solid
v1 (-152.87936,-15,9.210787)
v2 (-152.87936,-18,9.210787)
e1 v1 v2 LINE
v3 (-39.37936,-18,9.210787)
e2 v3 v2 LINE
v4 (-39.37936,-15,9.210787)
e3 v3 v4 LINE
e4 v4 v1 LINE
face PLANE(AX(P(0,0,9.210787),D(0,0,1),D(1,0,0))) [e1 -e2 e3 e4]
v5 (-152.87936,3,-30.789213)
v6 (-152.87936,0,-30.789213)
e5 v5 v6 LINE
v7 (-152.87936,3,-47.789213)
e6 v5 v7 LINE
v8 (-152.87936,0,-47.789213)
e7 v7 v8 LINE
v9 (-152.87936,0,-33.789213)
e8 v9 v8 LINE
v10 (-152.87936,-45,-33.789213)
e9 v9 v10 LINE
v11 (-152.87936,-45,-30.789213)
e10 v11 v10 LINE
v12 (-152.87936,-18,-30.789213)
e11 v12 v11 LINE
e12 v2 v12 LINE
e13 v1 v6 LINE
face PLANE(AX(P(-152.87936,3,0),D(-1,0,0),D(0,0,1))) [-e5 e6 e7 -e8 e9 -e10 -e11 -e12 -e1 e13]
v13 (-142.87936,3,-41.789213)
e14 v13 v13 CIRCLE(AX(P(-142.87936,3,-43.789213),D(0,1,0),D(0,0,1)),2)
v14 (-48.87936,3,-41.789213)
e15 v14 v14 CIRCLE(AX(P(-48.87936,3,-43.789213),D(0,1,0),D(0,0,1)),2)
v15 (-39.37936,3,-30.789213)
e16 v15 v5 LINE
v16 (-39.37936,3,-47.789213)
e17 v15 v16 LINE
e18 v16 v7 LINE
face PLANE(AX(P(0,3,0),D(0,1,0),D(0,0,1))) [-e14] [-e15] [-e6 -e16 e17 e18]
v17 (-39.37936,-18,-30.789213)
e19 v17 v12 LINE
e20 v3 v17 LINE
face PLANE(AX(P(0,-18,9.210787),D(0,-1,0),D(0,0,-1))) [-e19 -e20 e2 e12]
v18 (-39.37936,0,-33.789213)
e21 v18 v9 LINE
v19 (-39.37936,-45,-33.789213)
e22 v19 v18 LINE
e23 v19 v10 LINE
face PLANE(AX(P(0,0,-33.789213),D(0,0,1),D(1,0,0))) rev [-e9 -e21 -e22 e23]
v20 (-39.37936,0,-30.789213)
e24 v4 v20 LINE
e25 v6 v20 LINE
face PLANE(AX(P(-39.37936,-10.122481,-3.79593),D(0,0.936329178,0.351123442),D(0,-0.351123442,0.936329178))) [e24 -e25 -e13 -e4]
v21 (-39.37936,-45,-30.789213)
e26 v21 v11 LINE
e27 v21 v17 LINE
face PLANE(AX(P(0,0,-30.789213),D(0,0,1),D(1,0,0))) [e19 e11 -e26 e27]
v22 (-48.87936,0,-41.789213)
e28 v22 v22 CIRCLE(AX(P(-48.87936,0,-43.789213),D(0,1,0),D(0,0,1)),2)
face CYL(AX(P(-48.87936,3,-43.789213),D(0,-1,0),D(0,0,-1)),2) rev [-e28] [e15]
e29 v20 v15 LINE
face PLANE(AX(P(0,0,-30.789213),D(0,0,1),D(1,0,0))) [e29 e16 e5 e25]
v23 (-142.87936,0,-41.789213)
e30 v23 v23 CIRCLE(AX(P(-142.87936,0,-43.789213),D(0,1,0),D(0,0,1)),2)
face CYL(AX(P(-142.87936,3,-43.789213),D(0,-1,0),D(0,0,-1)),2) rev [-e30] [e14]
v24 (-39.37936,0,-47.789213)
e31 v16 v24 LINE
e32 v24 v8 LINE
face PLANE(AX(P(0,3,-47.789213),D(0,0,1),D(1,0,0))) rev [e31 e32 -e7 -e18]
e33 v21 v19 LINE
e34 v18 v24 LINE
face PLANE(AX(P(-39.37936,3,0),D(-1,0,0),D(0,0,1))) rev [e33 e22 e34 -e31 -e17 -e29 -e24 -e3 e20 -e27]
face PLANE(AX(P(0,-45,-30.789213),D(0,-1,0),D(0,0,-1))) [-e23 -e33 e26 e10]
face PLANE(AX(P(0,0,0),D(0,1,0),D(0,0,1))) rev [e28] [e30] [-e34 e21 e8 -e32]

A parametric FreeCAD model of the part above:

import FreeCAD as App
import Part
import Sketcher

V = App.Vector
Q = App.Units.Quantity


def add_polygon(sketch, points):
    """Adds a closed chain of lines whose ends are joined by coincident constraints."""
    first, n = sketch.GeometryCount, len(points)
    for a, b in zip(points, points[1:] + points[:1]):
        sketch.addGeometry(Part.LineSegment(App.Vector(*a, 0), App.Vector(*b, 0)), False)
    for i in range(n):
        sketch.addConstraint(Sketcher.Constraint("Coincident", first + i, 2, first + (i + 1) % n, 1))

doc = App.newDocument("Part")
body = doc.addObject("PartDesign::Body", "Body")

# Sketch on XZ plane
sketch1 = body.newObject("Sketcher::SketchObject", "Sketch")
sketch1.AttachmentSupport = (doc.getObject("XZ_Plane"), [""])
sketch1.MapMode = "FlatFace"
add_polygon(sketch1, [(-39.4, -47.8), (-152.9, -47.8), (-152.9, -33.8), (-39.4, -33.8)])  # lines 0-3
sketch1.addGeometry(Part.Circle(V(-142.9, -43.8, 0), V(0, 0, 1), 2), False)  # 4
sketch1.addGeometry(Part.Circle(V(-48.9, -43.8, 0), V(0, 0, 1), 2), False)  # 5
sketch1.addConstraint([
    Sketcher.Constraint("Horizontal", 0),
    Sketcher.Constraint("Vertical", 1),
    Sketcher.Constraint("Horizontal", 2),
    Sketcher.Constraint("Vertical", 3),
    Sketcher.Constraint("Equal", 4, 5),
    Sketcher.Constraint("Horizontal", 4, 3, 5, 3),
    Sketcher.Constraint("Diameter", 4, Q("4 mm")),
    Sketcher.Constraint("DistanceY", 1, 1, 1, 2, Q("14 mm")),
    Sketcher.Constraint("DistanceX", 0, 2, 0, 1, Q("113.5 mm")),
    Sketcher.Constraint("DistanceX", 4, 3, 5, 3, Q("94 mm")),
    Sketcher.Constraint("DistanceX", 0, 2, 4, 3, Q("10 mm")),
    Sketcher.Constraint("DistanceY", 0, 2, 4, 3, Q("4 mm")),
    Sketcher.Constraint("DistanceX", 4, 3, -1, 1, Q("142.87936 mm")),
    Sketcher.Constraint("DistanceY", 4, 3, -1, 1, Q("43.789213 mm")),
])
pad1 = body.newObject("PartDesign::Pad", "Pad")
pad1.Profile = sketch1
pad1.Length = 3
pad1.Reversed = True

# Sketch on XY plane
sketch2 = body.newObject("Sketcher::SketchObject", "Sketch001")
sketch2.AttachmentSupport = (doc.getObject("XY_Plane"), [""])
sketch2.MapMode = "FlatFace"
sketch2.AttachmentOffset = App.Placement(V(0, 0, -33.789213), App.Rotation())
add_polygon(sketch2, [(-153, 3), (-153, -45), (-39, -45), (-39, 3)])  # lines 0-3
sketch2.addConstraint([
    Sketcher.Constraint("Vertical", 0),
    Sketcher.Constraint("Horizontal", 1),
    Sketcher.Constraint("Vertical", 2),
    Sketcher.Constraint("Horizontal", 3),
    Sketcher.Constraint("DistanceY", 0, 2, 0, 1, Q("48 mm")),
    Sketcher.Constraint("DistanceX", 1, 1, 1, 2, Q("113.5 mm")),
    Sketcher.Constraint("DistanceY", 0, 2, -1, 1, Q("45 mm")),
    Sketcher.Constraint("DistanceX", 0, 2, -1, 1, Q("152.87936 mm")),
])
pad2 = body.newObject("PartDesign::Pad", "Pad001")
pad2.Profile = sketch2
pad2.Length = 3

# Sketch on XY plane
sketch3 = body.newObject("Sketcher::SketchObject", "Sketch002")
sketch3.AttachmentSupport = (doc.getObject("XY_Plane"), [""])
sketch3.MapMode = "FlatFace"
sketch3.AttachmentOffset = App.Placement(V(0, 0, -30.789213), App.Rotation())
add_polygon(sketch3, [(-153, 0), (-153, -18), (-39, -18), (-39, 0)])  # lines 0-3
sketch3.addConstraint([
    Sketcher.Constraint("Vertical", 0),
    Sketcher.Constraint("Horizontal", 1),
    Sketcher.Constraint("Vertical", 2),
    Sketcher.Constraint("Horizontal", 3),
    Sketcher.Constraint("PointOnObject", 2, 2, -1),
    Sketcher.Constraint("DistanceY", 0, 2, 0, 1, Q("18 mm")),
    Sketcher.Constraint("DistanceX", 1, 1, 1, 2, Q("113.5 mm")),
    Sketcher.Constraint("DistanceX", 0, 2, -1, 1, Q("152.87936 mm")),
])
pad3 = body.newObject("PartDesign::Pad", "Pad002")
pad3.Profile = sketch3
pad3.Length = 40

# Sketch on YZ plane
sketch4 = body.newObject("Sketcher::SketchObject", "Sketch003")
sketch4.AttachmentSupport = (doc.getObject("YZ_Plane"), [""])
sketch4.MapMode = "FlatFace"
sketch4.AttachmentOffset = App.Placement(V(0, 0, -152.87936), App.Rotation())
add_polygon(sketch4, [(0, -31), (-15, 9), (0, 9)])  # lines 0-2
sketch4.addConstraint([
    Sketcher.Constraint("Horizontal", 1),
    Sketcher.Constraint("Vertical", 2),
    Sketcher.Constraint("PointOnObject", 1, 2, -2),
    Sketcher.Constraint("DistanceX", 1, 1, 1, 2, Q("15 mm")),
    Sketcher.Constraint("DistanceY", 2, 2, 2, 1, Q("40 mm")),
    Sketcher.Constraint("DistanceY", -1, 1, 0, 2, Q("9.210787 mm")),
])
pocket1 = body.newObject("PartDesign::Pocket", "Pocket")
pocket1.Profile = sketch4
pocket1.Type = "ThroughAll"
pocket1.Reversed = True

doc.recompute()
